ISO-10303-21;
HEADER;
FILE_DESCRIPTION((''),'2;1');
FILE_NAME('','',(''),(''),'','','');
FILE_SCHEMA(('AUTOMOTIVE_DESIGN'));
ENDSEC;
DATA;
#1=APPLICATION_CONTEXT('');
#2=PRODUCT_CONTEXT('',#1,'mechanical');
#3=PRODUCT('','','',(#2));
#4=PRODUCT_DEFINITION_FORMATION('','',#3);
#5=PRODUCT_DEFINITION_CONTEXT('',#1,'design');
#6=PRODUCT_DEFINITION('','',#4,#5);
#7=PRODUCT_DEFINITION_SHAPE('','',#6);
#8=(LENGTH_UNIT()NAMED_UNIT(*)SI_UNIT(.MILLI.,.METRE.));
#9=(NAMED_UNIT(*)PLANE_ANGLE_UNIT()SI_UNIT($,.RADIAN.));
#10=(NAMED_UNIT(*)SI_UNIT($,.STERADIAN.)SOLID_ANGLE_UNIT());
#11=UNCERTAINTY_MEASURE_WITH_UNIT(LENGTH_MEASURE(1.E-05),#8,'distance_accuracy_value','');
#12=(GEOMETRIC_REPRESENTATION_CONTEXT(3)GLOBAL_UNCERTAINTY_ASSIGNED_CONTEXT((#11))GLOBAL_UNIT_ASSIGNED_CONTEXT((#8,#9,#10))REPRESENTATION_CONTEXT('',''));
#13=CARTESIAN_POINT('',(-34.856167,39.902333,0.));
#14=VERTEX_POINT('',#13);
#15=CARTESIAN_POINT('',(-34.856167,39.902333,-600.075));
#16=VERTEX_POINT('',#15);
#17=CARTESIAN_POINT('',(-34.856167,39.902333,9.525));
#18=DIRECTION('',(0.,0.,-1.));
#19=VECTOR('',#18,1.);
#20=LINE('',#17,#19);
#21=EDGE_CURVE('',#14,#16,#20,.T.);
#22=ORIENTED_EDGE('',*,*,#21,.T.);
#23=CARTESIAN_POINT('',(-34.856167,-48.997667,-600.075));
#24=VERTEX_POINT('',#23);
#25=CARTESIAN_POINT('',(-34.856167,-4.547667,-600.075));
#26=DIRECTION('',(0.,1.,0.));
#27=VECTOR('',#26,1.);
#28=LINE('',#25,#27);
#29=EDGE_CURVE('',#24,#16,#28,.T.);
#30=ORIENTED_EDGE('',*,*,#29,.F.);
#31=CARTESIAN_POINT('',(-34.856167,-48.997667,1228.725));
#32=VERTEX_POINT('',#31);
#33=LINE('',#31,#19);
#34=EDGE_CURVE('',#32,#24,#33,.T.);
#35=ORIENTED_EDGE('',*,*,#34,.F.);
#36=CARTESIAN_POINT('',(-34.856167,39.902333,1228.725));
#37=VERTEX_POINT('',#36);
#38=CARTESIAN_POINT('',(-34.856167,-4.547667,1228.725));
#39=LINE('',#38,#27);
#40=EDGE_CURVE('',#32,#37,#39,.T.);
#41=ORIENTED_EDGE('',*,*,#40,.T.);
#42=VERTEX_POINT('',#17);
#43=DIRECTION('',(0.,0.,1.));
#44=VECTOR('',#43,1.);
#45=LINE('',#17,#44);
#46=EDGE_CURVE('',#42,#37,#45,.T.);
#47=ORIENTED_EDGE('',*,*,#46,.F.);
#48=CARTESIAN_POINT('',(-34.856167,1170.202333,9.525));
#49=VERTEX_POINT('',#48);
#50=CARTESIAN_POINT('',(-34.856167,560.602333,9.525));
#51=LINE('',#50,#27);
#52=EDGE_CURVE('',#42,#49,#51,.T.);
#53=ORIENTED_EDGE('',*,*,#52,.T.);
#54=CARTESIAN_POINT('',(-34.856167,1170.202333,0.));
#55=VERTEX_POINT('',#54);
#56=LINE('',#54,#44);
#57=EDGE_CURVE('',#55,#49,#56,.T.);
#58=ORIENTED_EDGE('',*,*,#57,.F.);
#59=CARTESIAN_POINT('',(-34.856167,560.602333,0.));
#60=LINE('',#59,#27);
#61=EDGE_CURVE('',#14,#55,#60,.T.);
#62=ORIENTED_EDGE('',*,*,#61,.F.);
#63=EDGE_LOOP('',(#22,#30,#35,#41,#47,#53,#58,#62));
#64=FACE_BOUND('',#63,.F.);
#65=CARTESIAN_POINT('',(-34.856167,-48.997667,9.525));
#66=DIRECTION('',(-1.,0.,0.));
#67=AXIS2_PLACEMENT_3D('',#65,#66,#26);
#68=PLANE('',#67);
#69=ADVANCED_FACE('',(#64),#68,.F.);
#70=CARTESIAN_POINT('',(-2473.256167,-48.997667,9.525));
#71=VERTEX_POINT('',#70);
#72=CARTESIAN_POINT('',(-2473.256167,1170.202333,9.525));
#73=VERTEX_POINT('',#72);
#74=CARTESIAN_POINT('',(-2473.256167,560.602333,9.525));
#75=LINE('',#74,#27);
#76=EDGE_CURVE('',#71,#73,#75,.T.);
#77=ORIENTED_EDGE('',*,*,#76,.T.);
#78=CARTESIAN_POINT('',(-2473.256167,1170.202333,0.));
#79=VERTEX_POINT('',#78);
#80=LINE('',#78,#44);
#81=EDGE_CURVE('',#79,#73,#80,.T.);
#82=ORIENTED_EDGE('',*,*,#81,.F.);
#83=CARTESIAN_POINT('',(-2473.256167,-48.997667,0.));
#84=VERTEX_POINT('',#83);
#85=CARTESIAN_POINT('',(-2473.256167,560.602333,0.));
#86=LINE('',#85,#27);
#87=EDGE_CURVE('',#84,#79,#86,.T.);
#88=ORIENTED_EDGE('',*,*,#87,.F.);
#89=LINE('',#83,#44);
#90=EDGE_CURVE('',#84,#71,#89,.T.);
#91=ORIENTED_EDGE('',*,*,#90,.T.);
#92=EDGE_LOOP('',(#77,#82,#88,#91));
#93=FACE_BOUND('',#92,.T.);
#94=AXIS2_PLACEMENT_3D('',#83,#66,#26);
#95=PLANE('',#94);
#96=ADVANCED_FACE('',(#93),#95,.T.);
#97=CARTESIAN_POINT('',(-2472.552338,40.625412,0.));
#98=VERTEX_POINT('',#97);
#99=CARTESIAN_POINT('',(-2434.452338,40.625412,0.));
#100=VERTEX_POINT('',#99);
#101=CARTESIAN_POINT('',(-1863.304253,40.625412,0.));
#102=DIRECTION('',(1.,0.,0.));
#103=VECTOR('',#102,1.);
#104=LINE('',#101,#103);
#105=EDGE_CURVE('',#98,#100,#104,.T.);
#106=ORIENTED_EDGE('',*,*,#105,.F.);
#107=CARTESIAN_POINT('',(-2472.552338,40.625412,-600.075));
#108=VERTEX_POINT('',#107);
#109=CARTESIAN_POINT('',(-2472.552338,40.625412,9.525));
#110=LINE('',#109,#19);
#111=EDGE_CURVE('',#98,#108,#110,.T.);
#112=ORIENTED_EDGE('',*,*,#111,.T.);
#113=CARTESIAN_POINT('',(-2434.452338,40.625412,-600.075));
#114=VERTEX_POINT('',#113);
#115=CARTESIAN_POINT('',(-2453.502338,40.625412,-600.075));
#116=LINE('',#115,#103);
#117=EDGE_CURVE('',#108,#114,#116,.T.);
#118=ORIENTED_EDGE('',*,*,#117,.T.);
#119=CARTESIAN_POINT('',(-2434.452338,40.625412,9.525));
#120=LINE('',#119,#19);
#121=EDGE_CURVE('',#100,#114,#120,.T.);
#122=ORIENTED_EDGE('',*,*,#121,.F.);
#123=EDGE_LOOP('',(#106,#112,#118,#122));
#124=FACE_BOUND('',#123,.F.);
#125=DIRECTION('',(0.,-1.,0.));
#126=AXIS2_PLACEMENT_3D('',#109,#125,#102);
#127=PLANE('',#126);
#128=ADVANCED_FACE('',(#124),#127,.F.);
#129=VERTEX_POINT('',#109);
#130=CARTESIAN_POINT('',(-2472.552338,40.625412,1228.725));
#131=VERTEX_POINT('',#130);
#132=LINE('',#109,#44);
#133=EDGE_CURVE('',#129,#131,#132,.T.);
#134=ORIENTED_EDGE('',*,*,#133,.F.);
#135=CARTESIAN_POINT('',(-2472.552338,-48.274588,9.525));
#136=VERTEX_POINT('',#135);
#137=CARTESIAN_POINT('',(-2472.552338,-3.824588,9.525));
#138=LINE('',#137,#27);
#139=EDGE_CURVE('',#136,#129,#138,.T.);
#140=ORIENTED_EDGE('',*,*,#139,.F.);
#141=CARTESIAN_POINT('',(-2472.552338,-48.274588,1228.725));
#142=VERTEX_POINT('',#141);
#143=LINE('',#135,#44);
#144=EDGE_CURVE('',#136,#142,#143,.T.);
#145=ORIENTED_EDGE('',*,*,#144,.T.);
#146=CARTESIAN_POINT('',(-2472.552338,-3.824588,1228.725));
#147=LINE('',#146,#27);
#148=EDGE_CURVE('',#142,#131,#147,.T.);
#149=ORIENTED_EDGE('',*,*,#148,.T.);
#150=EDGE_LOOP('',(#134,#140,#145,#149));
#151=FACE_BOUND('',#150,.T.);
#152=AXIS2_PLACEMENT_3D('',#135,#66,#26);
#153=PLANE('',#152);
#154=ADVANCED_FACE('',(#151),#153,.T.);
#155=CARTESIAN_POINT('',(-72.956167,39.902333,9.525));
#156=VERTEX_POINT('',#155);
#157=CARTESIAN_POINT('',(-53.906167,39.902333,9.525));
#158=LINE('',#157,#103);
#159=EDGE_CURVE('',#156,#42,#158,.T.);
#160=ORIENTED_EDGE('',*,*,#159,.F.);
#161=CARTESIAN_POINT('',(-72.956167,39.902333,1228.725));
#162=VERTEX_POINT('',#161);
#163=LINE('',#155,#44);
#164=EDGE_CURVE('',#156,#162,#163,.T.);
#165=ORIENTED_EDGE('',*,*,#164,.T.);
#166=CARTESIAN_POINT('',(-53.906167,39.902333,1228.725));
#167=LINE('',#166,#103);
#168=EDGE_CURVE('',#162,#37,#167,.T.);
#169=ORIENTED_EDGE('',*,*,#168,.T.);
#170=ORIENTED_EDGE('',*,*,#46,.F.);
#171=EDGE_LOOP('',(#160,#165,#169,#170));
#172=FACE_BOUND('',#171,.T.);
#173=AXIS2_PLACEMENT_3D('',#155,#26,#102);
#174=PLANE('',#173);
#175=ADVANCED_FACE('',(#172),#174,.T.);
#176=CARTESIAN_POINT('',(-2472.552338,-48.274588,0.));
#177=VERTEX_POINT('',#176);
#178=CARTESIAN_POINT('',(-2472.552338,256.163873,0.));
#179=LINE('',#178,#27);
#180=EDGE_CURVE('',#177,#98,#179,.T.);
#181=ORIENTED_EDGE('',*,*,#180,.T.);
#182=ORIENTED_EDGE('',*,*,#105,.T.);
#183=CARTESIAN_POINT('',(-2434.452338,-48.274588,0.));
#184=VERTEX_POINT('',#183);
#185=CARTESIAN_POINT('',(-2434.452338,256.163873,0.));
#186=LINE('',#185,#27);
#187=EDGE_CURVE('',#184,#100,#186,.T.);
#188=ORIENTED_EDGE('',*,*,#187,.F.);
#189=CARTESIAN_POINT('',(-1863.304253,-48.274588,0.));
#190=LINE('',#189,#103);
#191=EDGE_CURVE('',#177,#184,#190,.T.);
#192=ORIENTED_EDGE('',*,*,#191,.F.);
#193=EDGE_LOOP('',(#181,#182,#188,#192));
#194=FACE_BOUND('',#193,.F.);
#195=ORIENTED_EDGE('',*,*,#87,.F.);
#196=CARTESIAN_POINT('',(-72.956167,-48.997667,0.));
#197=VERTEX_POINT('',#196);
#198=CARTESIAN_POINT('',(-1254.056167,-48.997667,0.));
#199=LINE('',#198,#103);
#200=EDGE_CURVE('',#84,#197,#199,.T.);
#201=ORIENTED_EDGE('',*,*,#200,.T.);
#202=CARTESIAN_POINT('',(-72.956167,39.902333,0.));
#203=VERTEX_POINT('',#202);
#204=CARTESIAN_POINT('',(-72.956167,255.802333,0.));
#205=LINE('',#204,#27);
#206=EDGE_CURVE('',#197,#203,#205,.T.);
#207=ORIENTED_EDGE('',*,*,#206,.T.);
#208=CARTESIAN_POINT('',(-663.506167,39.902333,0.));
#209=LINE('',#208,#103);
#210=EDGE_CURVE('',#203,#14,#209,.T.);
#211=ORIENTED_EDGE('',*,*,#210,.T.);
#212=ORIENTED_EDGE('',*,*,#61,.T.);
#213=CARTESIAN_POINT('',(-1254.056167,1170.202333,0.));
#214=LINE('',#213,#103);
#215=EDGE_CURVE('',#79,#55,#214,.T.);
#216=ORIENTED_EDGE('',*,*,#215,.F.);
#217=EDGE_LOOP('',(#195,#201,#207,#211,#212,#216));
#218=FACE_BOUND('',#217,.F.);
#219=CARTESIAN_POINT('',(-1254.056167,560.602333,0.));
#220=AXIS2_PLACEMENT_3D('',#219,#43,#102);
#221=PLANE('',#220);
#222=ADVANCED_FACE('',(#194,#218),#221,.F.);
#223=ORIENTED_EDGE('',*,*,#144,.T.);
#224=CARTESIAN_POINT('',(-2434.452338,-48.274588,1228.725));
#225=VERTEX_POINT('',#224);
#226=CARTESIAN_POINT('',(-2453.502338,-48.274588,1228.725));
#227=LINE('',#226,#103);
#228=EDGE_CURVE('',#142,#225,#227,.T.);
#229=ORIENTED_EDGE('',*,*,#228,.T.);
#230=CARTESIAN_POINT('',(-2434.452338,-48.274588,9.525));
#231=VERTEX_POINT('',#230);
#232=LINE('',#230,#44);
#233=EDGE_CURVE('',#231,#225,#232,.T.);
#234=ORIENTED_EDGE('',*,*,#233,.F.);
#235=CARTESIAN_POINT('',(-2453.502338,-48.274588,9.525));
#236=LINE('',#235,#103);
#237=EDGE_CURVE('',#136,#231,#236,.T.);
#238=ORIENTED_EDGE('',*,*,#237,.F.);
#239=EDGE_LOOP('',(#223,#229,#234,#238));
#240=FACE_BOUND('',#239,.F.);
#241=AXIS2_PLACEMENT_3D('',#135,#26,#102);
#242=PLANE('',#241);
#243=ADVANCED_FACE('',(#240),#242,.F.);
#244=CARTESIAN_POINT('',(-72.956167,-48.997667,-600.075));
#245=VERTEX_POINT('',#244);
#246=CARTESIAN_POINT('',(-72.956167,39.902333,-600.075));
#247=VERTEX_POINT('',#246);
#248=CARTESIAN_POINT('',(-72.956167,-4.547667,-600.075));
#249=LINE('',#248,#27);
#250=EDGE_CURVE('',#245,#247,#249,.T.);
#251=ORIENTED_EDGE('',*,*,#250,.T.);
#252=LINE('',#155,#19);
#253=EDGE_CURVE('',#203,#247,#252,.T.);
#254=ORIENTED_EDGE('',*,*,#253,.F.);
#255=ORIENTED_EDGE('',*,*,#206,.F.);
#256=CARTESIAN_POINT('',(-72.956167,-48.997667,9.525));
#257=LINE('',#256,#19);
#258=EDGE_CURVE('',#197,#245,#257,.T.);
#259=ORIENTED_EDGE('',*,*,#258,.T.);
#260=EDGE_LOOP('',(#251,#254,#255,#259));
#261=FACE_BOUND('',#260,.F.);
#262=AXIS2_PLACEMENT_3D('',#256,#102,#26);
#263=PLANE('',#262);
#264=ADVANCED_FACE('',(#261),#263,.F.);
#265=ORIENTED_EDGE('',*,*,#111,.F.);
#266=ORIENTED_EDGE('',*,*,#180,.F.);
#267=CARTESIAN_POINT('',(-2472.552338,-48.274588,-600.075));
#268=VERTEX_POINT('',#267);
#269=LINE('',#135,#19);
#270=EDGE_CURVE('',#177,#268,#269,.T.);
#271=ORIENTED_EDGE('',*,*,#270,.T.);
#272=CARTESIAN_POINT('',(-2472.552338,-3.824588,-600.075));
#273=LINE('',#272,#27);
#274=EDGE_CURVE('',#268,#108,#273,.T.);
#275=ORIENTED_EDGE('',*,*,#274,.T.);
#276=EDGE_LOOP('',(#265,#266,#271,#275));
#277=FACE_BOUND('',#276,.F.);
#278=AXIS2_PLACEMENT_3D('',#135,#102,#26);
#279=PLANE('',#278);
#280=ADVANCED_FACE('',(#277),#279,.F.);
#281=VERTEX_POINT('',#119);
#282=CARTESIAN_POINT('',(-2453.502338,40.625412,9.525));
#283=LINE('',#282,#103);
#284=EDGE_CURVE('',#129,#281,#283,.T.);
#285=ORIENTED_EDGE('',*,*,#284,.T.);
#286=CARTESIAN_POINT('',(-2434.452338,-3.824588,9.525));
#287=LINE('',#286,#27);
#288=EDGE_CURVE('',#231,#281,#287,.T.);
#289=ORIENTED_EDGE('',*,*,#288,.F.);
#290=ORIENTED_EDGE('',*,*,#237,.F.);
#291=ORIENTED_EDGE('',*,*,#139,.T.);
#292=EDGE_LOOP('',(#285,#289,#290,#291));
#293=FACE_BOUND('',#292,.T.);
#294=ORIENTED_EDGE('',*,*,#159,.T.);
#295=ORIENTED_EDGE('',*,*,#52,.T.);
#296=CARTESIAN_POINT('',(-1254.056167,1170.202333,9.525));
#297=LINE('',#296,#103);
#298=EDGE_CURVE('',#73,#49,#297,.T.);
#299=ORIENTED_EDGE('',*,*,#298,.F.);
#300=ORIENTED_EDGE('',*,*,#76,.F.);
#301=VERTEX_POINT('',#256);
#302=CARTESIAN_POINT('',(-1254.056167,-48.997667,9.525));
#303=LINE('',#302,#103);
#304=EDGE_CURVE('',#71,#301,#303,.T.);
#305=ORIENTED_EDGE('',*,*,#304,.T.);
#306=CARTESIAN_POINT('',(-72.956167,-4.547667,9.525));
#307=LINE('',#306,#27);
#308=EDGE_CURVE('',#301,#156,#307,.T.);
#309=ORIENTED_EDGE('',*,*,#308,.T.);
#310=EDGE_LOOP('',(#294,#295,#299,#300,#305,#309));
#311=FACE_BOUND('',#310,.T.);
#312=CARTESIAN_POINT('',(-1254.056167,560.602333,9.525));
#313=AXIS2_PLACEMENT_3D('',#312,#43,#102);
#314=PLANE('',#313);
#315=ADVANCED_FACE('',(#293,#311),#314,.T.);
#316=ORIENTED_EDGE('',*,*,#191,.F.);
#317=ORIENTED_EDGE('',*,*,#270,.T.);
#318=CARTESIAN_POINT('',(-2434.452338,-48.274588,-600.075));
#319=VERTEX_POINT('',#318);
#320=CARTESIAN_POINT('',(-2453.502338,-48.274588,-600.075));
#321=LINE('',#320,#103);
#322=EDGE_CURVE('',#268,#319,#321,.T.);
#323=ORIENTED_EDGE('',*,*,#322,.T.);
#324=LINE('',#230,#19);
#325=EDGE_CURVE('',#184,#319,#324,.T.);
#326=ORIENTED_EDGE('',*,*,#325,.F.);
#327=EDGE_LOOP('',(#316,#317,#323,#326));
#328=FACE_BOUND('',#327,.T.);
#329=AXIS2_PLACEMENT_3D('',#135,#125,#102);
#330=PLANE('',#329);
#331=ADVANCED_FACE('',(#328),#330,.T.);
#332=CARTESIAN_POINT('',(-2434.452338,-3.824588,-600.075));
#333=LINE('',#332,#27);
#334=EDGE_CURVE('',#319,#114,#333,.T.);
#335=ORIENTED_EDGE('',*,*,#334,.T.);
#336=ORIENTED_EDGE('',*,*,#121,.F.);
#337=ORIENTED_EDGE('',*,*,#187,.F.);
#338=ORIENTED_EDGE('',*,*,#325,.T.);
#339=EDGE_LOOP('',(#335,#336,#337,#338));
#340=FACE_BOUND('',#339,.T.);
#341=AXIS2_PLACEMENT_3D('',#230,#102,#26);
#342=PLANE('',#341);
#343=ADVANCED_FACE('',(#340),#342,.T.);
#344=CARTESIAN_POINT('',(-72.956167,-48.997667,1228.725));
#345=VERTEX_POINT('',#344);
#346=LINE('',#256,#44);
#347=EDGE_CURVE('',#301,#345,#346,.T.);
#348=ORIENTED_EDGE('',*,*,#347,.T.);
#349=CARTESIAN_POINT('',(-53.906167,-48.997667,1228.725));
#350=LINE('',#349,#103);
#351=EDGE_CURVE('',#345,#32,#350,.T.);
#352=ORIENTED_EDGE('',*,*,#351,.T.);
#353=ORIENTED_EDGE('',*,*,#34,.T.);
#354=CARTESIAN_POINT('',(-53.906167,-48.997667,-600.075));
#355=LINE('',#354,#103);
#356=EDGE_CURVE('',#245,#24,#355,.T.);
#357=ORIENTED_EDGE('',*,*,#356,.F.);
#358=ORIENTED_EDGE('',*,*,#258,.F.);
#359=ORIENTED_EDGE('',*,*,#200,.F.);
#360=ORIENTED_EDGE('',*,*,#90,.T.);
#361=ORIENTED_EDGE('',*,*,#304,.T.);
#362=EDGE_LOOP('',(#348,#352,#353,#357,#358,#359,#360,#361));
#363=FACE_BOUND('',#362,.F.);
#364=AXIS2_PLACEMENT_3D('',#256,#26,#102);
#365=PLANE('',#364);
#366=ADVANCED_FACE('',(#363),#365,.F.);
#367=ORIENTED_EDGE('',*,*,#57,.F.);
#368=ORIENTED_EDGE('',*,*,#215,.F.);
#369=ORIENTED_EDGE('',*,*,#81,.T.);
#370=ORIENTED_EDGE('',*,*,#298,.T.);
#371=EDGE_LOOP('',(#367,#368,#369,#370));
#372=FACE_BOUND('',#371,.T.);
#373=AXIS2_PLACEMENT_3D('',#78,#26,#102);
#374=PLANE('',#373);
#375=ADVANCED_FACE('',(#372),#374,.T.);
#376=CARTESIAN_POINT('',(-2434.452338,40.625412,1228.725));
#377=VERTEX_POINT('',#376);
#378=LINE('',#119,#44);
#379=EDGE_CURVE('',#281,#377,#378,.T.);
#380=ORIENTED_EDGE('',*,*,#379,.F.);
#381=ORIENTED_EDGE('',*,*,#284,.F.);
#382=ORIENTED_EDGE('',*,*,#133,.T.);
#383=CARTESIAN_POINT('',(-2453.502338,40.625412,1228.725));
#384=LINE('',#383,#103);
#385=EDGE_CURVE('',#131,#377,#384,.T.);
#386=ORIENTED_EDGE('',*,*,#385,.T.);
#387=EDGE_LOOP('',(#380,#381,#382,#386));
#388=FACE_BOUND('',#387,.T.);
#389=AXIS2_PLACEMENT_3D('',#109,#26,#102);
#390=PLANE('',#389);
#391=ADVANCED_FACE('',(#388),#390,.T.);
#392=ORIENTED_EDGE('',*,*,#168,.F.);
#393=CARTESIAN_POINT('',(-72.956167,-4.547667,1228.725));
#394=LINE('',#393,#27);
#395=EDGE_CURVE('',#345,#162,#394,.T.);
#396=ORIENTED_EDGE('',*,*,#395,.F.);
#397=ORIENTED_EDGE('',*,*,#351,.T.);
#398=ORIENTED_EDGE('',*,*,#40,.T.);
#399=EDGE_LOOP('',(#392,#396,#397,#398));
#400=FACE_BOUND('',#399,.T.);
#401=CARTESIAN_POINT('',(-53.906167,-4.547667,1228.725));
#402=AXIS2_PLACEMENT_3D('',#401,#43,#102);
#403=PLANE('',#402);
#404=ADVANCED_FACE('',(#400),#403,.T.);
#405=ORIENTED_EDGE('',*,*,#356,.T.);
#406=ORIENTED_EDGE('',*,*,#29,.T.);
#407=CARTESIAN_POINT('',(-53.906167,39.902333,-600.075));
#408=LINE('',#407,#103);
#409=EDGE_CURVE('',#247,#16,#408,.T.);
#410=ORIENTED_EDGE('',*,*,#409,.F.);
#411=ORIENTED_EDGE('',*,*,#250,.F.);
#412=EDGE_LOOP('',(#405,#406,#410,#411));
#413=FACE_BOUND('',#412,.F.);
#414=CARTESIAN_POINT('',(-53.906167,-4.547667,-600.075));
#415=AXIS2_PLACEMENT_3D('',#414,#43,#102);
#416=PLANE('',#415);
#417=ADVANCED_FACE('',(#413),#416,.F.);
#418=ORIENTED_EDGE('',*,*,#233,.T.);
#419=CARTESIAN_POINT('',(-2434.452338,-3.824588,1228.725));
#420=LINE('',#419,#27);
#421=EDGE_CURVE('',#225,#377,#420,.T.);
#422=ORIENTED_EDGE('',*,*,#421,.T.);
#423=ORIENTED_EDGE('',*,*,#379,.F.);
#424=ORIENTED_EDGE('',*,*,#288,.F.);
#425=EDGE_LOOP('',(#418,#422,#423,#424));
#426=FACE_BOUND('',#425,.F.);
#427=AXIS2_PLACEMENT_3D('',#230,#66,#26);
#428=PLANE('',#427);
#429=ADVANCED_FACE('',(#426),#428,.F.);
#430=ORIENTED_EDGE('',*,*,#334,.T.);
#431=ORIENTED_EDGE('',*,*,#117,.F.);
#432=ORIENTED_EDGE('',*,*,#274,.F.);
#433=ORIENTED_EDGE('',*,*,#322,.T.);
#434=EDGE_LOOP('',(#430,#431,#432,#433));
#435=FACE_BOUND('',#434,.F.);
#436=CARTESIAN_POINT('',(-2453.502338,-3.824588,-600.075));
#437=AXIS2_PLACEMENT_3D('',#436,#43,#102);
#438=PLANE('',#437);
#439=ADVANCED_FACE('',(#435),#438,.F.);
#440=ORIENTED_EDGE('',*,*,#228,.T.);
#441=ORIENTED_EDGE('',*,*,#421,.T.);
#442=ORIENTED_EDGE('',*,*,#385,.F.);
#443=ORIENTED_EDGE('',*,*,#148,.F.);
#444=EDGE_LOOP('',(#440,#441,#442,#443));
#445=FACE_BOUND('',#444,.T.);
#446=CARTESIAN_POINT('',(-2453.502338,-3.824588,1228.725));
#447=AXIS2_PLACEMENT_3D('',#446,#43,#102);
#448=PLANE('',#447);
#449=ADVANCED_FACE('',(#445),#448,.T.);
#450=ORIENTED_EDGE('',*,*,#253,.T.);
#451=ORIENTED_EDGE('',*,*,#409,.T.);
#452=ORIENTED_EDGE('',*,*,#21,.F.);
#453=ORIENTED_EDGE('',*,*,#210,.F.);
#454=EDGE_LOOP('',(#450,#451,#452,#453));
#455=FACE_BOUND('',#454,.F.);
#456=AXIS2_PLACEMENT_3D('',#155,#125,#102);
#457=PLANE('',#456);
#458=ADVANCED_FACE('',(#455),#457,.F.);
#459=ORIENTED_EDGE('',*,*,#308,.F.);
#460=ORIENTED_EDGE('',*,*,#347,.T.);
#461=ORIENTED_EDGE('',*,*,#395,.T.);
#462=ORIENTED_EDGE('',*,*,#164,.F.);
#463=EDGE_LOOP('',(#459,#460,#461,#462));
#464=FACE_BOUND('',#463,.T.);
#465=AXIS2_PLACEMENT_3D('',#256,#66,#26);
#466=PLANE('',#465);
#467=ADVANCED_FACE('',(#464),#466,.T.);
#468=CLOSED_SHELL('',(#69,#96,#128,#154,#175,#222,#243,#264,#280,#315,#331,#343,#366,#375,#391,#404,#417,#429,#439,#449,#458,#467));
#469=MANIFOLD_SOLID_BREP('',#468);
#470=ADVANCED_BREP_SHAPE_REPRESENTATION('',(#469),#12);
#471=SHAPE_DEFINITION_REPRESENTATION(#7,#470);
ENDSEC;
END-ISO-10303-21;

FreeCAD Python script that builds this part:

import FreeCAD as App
import Part
import Sketcher

V = App.Vector
Q = App.Units.Quantity

doc = App.newDocument("Part")
params = doc.addObject("Spreadsheet::Sheet", "Params")
for row, (alias, value) in enumerate([
    ("sketch1_width", "96 in"),
    ("sketch1_height", "48 in"),
    ("pad1_length", "0.375 in"),
    ("sketch2_width", "1.5 in"),
    ("sketch2_height", "3.5 in"),
    ("pad2_length", "48 in"),
    ("pad2_length2", "24 in"),
], start=1):
    params.set(f"A{row}", alias)
    params.set(f"B{row}", "=" + value)
    params.setAlias(f"B{row}", alias)

body = doc.addObject("PartDesign::Body", "Body")

sketch1 = body.newObject("Sketcher::SketchObject", "Sketch")
sketch1.AttachmentSupport = (doc.getObject("XY_Plane"), [""])
sketch1.MapMode = "FlatFace"
sketch1.addGeometry([
    Part.LineSegment(V(-2473, 1170, 0), V(-2473, -49, 0)),
    Part.LineSegment(V(-2473, -49, 0), V(-35, -49, 0)),
    Part.LineSegment(V(-35, -49, 0), V(-35, 1170, 0)),
    Part.LineSegment(V(-35, 1170, 0), V(-2473, 1170, 0)),
], False)
sketch1.addConstraint([
    Sketcher.Constraint("Coincident", 0, 2, 1, 1),
    Sketcher.Constraint("Coincident", 1, 2, 2, 1),
    Sketcher.Constraint("Coincident", 2, 2, 3, 1),
    Sketcher.Constraint("Coincident", 3, 2, 0, 1),
    Sketcher.Constraint("Vertical", 0),
    Sketcher.Constraint("Horizontal", 1),
    Sketcher.Constraint("Vertical", 2),
    Sketcher.Constraint("Horizontal", 3),
    Sketcher.Constraint("DistanceX", 1, 1, 1, 2, Q("96 in")),
    Sketcher.Constraint("DistanceY", 0, 2, 0, 1, Q("48 in")),
    Sketcher.Constraint("DistanceX", 0, 2, -1, 1, 2473.256167),
    Sketcher.Constraint("DistanceY", 0, 2, -1, 1, 48.997667),
])
sketch1.setExpression("Constraints[8]", "Params.sketch1_width")
sketch1.setExpression("Constraints[9]", "Params.sketch1_height")
pad1 = body.newObject("PartDesign::Pad", "Pad")
pad1.Profile = sketch1
pad1.setExpression("Length", "Params.pad1_length")

sketch2 = body.newObject("Sketcher::SketchObject", "Sketch001")
sketch2.AttachmentSupport = (doc.getObject("XY_Plane"), [""])
sketch2.MapMode = "FlatFace"
sketch2.AttachmentOffset = App.Placement(V(0, 0, 0.375 * 25.4), App.Rotation())
sketch2.addGeometry([
    Part.LineSegment(V(-2473, 41, 0), V(-2473, -48, 0)),
    Part.LineSegment(V(-2473, -48, 0), V(-2434, -48, 0)),
    Part.LineSegment(V(-2434, -48, 0), V(-2434, 41, 0)),
    Part.LineSegment(V(-2434, 41, 0), V(-2473, 41, 0)),
    Part.LineSegment(V(-73, 40, 0), V(-73, -49, 0)),
    Part.LineSegment(V(-73, -49, 0), V(-35, -49, 0)),
    Part.LineSegment(V(-35, -49, 0), V(-35, 40, 0)),
    Part.LineSegment(V(-35, 40, 0), V(-73, 40, 0)),
], False)
sketch2.addConstraint([
    Sketcher.Constraint("Coincident", 0, 2, 1, 1),
    Sketcher.Constraint("Coincident", 1, 2, 2, 1),
    Sketcher.Constraint("Coincident", 2, 2, 3, 1),
    Sketcher.Constraint("Coincident", 3, 2, 0, 1),
    Sketcher.Constraint("Coincident", 4, 2, 5, 1),
    Sketcher.Constraint("Coincident", 5, 2, 6, 1),
    Sketcher.Constraint("Coincident", 6, 2, 7, 1),
    Sketcher.Constraint("Coincident", 7, 2, 4, 1),
    Sketcher.Constraint("Vertical", 0),
    Sketcher.Constraint("Horizontal", 1),
    Sketcher.Constraint("Vertical", 2),
    Sketcher.Constraint("Horizontal", 3),
    Sketcher.Constraint("Vertical", 4),
    Sketcher.Constraint("Horizontal", 5),
    Sketcher.Constraint("Vertical", 6),
    Sketcher.Constraint("Horizontal", 7),
    Sketcher.Constraint("Equal", 3, 5),
    Sketcher.Constraint("Equal", 2, 4),
    Sketcher.Constraint("DistanceX", 1, 1, 1, 2, Q("1.5 in")),
    Sketcher.Constraint("DistanceY", 0, 2, 0, 1, Q("3.5 in")),
    Sketcher.Constraint("DistanceX", 1, 2, -1, 1, 2434.452338),
    Sketcher.Constraint("DistanceY", -1, 1, 2, 2, 40.625412),
    Sketcher.Constraint("DistanceX", 1, 2, 4, 2, 2361.496171),
    Sketcher.Constraint("DistanceY", 4, 2, 1, 2, 0.723079),
])
sketch2.setExpression("Constraints[18]", "Params.sketch2_width")
sketch2.setExpression("Constraints[19]", "Params.sketch2_height")
pad2 = body.newObject("PartDesign::Pad", "Pad001")
pad2.Profile = sketch2
pad2.Type = "TwoLengths"
pad2.setExpression("Length", "Params.pad2_length")
pad2.setExpression("Length2", "Params.pad2_length2")

doc.recompute()
